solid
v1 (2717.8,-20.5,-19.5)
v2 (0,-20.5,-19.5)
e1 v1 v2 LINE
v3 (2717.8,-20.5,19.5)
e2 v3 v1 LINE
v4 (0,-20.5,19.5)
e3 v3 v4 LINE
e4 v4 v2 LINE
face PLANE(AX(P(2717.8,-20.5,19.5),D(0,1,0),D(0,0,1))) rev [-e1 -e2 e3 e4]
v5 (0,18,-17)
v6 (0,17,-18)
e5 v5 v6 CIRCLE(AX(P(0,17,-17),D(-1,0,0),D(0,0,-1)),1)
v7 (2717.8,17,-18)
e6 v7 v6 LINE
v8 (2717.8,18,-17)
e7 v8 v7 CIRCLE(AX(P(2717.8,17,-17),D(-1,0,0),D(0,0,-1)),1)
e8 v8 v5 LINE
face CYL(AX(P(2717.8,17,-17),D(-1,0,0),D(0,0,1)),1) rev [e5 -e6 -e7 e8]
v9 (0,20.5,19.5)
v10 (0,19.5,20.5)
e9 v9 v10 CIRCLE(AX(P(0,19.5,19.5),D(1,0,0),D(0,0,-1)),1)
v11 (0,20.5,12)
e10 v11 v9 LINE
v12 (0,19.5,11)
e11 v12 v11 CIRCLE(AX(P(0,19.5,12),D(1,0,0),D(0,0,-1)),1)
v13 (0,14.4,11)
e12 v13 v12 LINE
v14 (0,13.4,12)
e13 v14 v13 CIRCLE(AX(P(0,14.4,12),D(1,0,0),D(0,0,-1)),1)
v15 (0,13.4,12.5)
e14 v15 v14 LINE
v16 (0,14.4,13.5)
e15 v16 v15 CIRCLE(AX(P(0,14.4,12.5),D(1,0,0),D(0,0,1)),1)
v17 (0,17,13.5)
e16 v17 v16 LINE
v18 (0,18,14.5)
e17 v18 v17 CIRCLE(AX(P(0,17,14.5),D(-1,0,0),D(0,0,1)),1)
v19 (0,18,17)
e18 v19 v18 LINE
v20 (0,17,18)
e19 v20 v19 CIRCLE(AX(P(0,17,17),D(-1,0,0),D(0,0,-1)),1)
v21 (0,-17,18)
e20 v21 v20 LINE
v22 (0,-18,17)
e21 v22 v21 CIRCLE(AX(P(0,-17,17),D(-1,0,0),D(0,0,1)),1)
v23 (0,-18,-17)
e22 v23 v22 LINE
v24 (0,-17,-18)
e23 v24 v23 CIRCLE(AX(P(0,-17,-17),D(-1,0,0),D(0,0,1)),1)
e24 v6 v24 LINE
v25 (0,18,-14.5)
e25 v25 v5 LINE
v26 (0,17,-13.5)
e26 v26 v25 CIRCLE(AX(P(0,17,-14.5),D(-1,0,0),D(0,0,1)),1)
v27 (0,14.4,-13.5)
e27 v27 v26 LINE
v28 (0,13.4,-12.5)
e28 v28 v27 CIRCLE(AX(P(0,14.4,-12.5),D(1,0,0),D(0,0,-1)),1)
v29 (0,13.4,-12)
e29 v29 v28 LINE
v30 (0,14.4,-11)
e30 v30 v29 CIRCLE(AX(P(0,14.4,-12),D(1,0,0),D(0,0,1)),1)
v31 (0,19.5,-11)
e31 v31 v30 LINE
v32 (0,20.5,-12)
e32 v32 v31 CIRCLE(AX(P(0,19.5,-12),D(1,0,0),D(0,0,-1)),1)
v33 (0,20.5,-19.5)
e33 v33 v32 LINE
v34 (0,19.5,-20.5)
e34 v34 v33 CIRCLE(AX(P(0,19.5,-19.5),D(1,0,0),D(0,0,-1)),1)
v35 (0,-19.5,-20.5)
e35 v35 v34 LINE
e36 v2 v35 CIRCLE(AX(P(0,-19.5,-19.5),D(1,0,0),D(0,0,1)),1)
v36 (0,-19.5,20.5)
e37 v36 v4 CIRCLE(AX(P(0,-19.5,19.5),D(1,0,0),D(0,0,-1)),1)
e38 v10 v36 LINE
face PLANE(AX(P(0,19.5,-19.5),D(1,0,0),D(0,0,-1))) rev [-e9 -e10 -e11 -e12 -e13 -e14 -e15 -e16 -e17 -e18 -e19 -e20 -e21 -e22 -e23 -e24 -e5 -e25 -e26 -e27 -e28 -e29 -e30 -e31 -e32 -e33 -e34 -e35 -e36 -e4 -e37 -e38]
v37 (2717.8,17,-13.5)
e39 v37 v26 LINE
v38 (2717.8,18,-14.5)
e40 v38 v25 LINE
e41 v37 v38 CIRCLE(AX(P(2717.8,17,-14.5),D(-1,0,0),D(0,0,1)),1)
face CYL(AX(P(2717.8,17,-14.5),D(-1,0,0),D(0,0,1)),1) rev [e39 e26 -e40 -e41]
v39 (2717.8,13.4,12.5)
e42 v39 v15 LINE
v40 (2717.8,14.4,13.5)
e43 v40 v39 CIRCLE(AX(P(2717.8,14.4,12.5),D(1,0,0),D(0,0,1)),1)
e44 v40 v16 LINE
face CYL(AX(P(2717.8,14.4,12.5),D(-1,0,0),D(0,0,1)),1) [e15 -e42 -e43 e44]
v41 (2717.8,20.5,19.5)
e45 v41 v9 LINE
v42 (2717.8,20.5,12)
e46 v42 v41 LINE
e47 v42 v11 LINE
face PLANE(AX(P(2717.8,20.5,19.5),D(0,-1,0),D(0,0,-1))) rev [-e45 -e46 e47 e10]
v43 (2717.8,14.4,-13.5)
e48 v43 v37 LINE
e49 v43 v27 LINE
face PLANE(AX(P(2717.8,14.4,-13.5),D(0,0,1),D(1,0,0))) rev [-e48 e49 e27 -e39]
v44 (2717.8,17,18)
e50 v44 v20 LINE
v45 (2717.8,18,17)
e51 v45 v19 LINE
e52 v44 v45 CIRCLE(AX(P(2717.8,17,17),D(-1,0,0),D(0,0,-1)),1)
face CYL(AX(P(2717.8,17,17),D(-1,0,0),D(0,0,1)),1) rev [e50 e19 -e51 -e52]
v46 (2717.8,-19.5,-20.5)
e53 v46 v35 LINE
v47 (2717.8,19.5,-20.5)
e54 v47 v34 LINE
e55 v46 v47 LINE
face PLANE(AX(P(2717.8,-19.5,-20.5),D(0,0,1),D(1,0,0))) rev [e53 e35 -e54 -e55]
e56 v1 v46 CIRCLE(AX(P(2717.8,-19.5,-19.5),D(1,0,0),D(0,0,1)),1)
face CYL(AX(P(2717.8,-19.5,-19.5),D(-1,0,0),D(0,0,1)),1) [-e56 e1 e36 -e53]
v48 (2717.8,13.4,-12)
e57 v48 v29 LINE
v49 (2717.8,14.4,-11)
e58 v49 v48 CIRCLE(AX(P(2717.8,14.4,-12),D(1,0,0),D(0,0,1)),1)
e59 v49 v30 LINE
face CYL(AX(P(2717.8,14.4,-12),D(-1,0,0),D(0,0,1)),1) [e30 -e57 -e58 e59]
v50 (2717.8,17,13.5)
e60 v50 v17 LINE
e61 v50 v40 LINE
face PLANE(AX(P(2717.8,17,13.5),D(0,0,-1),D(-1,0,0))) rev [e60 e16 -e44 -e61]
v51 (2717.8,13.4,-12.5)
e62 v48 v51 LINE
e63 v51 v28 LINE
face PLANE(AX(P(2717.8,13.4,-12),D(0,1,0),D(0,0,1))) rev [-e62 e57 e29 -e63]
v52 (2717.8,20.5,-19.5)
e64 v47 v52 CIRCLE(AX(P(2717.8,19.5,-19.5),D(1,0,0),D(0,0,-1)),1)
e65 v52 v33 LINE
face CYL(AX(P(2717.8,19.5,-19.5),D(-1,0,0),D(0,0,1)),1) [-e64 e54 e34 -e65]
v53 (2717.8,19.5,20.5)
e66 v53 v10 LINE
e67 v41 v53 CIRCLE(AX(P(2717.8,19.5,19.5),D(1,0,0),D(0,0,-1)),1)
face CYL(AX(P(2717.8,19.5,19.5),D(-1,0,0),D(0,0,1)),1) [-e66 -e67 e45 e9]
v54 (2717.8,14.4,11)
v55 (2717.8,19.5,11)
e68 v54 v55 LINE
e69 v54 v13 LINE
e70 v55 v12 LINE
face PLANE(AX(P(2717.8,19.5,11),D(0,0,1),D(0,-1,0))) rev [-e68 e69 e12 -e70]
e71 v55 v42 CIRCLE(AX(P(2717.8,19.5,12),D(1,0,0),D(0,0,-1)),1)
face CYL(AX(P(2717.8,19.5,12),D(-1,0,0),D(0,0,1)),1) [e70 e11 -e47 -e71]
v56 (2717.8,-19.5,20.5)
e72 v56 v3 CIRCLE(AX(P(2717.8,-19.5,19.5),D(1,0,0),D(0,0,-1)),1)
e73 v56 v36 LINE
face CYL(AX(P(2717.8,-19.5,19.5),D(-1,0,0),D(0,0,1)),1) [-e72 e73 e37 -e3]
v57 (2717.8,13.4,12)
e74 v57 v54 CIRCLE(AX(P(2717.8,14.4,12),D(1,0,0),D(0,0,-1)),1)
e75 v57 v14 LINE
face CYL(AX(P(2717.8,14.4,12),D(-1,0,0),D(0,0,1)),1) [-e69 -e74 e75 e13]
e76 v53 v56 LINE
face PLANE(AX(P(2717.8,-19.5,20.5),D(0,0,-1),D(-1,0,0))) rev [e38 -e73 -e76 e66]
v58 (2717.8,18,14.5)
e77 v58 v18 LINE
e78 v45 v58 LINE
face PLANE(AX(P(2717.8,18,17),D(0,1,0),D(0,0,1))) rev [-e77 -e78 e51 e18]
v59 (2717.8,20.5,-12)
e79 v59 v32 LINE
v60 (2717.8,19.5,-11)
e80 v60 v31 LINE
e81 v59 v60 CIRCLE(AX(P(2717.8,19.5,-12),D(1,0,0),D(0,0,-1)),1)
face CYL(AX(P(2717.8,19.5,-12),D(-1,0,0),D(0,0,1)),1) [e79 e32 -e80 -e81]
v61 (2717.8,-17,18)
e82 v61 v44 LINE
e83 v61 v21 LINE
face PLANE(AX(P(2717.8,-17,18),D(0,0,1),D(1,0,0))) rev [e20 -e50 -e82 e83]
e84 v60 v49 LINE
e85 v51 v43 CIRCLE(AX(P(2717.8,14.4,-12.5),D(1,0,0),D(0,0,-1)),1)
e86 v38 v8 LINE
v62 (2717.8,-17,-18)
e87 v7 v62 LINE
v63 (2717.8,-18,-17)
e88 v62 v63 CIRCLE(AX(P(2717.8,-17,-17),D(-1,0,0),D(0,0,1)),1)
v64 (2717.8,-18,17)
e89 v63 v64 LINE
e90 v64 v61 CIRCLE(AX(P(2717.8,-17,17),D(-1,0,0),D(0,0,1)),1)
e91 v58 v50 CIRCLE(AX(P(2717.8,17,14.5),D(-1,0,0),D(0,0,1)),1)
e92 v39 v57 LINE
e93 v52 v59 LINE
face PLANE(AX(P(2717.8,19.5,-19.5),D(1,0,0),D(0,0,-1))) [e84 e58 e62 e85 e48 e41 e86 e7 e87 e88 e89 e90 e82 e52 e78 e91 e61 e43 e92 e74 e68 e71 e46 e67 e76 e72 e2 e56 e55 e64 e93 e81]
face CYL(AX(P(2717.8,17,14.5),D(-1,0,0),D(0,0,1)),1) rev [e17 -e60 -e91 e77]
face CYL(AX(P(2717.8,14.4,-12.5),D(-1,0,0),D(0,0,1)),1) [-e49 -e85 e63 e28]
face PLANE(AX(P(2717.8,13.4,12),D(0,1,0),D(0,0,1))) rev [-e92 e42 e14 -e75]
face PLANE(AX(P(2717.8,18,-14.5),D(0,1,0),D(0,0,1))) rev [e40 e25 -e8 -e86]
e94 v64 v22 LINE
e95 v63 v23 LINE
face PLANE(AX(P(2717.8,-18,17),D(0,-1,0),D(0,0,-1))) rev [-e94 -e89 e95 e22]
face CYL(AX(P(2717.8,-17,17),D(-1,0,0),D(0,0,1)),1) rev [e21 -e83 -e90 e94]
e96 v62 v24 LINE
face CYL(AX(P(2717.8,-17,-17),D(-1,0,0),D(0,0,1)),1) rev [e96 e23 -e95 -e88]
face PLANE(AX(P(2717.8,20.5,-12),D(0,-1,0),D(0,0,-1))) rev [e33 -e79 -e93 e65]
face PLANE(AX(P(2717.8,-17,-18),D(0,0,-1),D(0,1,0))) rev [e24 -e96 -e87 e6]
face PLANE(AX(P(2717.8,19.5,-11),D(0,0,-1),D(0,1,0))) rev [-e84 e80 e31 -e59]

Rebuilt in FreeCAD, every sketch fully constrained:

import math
import FreeCAD as App
import Part
import Sketcher

V = App.Vector
Q = App.Units.Quantity

doc = App.newDocument("Part")
params = doc.addObject("Spreadsheet::Sheet", "Params")
for row, (alias, value) in enumerate([
    ("sketch1_radius", "1 mm"),
    ("sketch1_width", "34 mm"),
    ("sketch1_width2", "39 mm"),
    ("sketch1_width3", "2.6 mm"),
    ("sketch1_height", "2.5 mm"),
    ("pad1_length", "2717.8 mm"),
], start=1):
    params.set(f"A{row}", alias)
    params.set(f"B{row}", "=" + value)
    params.setAlias(f"B{row}", alias)

body = doc.addObject("PartDesign::Body", "Body")

# Sketch on YZ plane
sketch1 = body.newObject("Sketcher::SketchObject", "Sketch")
sketch1.AttachmentSupport = (doc.getObject("YZ_Plane"), [""])
sketch1.MapMode = "FlatFace"
sketch1.addGeometry([
    Part.LineSegment(V(-17, 18, 0), V(17, 18, 0)),  # 0
    Part.ArcOfCircle(Part.Circle(V(17, 17, 0), V(0, 0, 1), 1), math.radians(0), math.radians(90)),  # 1
    Part.LineSegment(V(18, 17, 0), V(18, 14.5, 0)),  # 2
    Part.ArcOfCircle(Part.Circle(V(17, 14.5, 0), V(0, 0, 1), 1), math.radians(-90), math.radians(0)),  # 3
    Part.LineSegment(V(17, 13.5, 0), V(14.4, 13.5, 0)),  # 4
    Part.ArcOfCircle(Part.Circle(V(14.4, 12.5, 0), V(0, 0, 1), 1), math.radians(90), math.radians(180)),  # 5
    Part.LineSegment(V(13.4, 12.5, 0), V(13.4, 12, 0)),  # 6
    Part.ArcOfCircle(Part.Circle(V(14.4, 12, 0), V(0, 0, 1), 1), math.radians(-180), math.radians(-90)),  # 7
    Part.LineSegment(V(14.4, 11, 0), V(19.5, 11, 0)),  # 8
    Part.ArcOfCircle(Part.Circle(V(19.5, 12, 0), V(0, 0, 1), 1), math.radians(-90), math.radians(0)),  # 9
    Part.LineSegment(V(20.5, 12, 0), V(20.5, 19.5, 0)),  # 10
    Part.ArcOfCircle(Part.Circle(V(19.5, 19.5, 0), V(0, 0, 1), 1), math.radians(0), math.radians(90)),  # 11
    Part.LineSegment(V(19.5, 20.5, 0), V(-19.5, 20.5, 0)),  # 12
    Part.ArcOfCircle(Part.Circle(V(-19.5, 19.5, 0), V(0, 0, 1), 1), math.radians(90), math.radians(180)),  # 13
    Part.LineSegment(V(-20.5, 19.5, 0), V(-20.5, -19.5, 0)),  # 14
    Part.ArcOfCircle(Part.Circle(V(-19.5, -19.5, 0), V(0, 0, 1), 1), math.radians(-180), math.radians(-90)),  # 15
    Part.LineSegment(V(-19.5, -20.5, 0), V(19.5, -20.5, 0)),  # 16
    Part.ArcOfCircle(Part.Circle(V(19.5, -19.5, 0), V(0, 0, 1), 1), math.radians(-90), math.radians(0)),  # 17
    Part.LineSegment(V(20.5, -19.5, 0), V(20.5, -12, 0)),  # 18
    Part.ArcOfCircle(Part.Circle(V(19.5, -12, 0), V(0, 0, 1), 1), math.radians(0), math.radians(90)),  # 19
    Part.LineSegment(V(19.5, -11, 0), V(14.4, -11, 0)),  # 20
    Part.ArcOfCircle(Part.Circle(V(14.4, -12, 0), V(0, 0, 1), 1), math.radians(90), math.radians(180)),  # 21
    Part.LineSegment(V(13.4, -12, 0), V(13.4, -12.5, 0)),  # 22
    Part.ArcOfCircle(Part.Circle(V(14.4, -12.5, 0), V(0, 0, 1), 1), math.radians(-180), math.radians(-90)),  # 23
    Part.LineSegment(V(14.4, -13.5, 0), V(17, -13.5, 0)),  # 24
    Part.ArcOfCircle(Part.Circle(V(17, -14.5, 0), V(0, 0, 1), 1), math.radians(0), math.radians(90)),  # 25
    Part.LineSegment(V(18, -14.5, 0), V(18, -17, 0)),  # 26
    Part.ArcOfCircle(Part.Circle(V(17, -17, 0), V(0, 0, 1), 1), math.radians(-90), math.radians(0)),  # 27
    Part.LineSegment(V(17, -18, 0), V(-17, -18, 0)),  # 28
    Part.ArcOfCircle(Part.Circle(V(-17, -17, 0), V(0, 0, 1), 1), math.radians(-180), math.radians(-90)),  # 29
    Part.LineSegment(V(-18, -17, 0), V(-18, 17, 0)),  # 30
    Part.ArcOfCircle(Part.Circle(V(-17, 17, 0), V(0, 0, 1), 1), math.radians(90), math.radians(180)),  # 31
], False)
sketch1.addConstraint([
    Sketcher.Constraint("Tangent", 0, 2, 1, 2),
    Sketcher.Constraint("Tangent", 1, 1, 2, 1),
    Sketcher.Constraint("Tangent", 2, 2, 3, 2),
    Sketcher.Constraint("Tangent", 3, 1, 4, 1),
    Sketcher.Constraint("Tangent", 4, 2, 5, 1),
    Sketcher.Constraint("Tangent", 5, 2, 6, 1),
    Sketcher.Constraint("Tangent", 6, 2, 7, 1),
    Sketcher.Constraint("Tangent", 7, 2, 8, 1),
    Sketcher.Constraint("Tangent", 8, 2, 9, 1),
    Sketcher.Constraint("Tangent", 9, 2, 10, 1),
    Sketcher.Constraint("Tangent", 10, 2, 11, 1),
    Sketcher.Constraint("Tangent", 11, 2, 12, 1),
    Sketcher.Constraint("Tangent", 12, 2, 13, 1),
    Sketcher.Constraint("Tangent", 13, 2, 14, 1),
    Sketcher.Constraint("Tangent", 14, 2, 15, 1),
    Sketcher.Constraint("Tangent", 15, 2, 16, 1),
    Sketcher.Constraint("Tangent", 16, 2, 17, 1),
    Sketcher.Constraint("Tangent", 17, 2, 18, 1),
    Sketcher.Constraint("Tangent", 18, 2, 19, 1),
    Sketcher.Constraint("Tangent", 19, 2, 20, 1),
    Sketcher.Constraint("Tangent", 20, 2, 21, 1),
    Sketcher.Constraint("Tangent", 21, 2, 22, 1),
    Sketcher.Constraint("Tangent", 22, 2, 23, 1),
    Sketcher.Constraint("Tangent", 23, 2, 24, 1),
    Sketcher.Constraint("Tangent", 24, 2, 25, 2),
    Sketcher.Constraint("Tangent", 25, 1, 26, 1),
    Sketcher.Constraint("Tangent", 26, 2, 27, 2),
    Sketcher.Constraint("Tangent", 27, 1, 28, 1),
    Sketcher.Constraint("Tangent", 28, 2, 29, 2),
    Sketcher.Constraint("Tangent", 29, 1, 30, 1),
    Sketcher.Constraint("Tangent", 30, 2, 31, 2),
    Sketcher.Constraint("Tangent", 31, 1, 0, 1),
    Sketcher.Constraint("Horizontal", 0),
    Sketcher.Constraint("Vertical", 2),
    Sketcher.Constraint("Horizontal", 4),
    Sketcher.Constraint("Vertical", 6),
    Sketcher.Constraint("Horizontal", 8),
    Sketcher.Constraint("Vertical", 10),
    Sketcher.Constraint("Horizontal", 12),
    Sketcher.Constraint("Vertical", 14),
    Sketcher.Constraint("Horizontal", 16),
    Sketcher.Constraint("Vertical", 18),
    Sketcher.Constraint("Horizontal", 20),
    Sketcher.Constraint("Vertical", 22),
    Sketcher.Constraint("Horizontal", 24),
    Sketcher.Constraint("Vertical", 26),
    Sketcher.Constraint("Horizontal", 28),
    Sketcher.Constraint("Vertical", 30),
    Sketcher.Constraint("Equal", 1, 3),
    Sketcher.Constraint("Equal", 3, 5),
    Sketcher.Constraint("Equal", 5, 7),
    Sketcher.Constraint("Equal", 7, 9),
    Sketcher.Constraint("Equal", 9, 11),
    Sketcher.Constraint("Equal", 11, 13),
    Sketcher.Constraint("Equal", 13, 15),
    Sketcher.Constraint("Equal", 15, 17),
    Sketcher.Constraint("Equal", 17, 19),
    Sketcher.Constraint("Equal", 19, 21),
    Sketcher.Constraint("Equal", 21, 23),
    Sketcher.Constraint("Equal", 23, 25),
    Sketcher.Constraint("Equal", 25, 27),
    Sketcher.Constraint("Equal", 27, 29),
    Sketcher.Constraint("Equal", 29, 31),
    Sketcher.Constraint("Symmetric", 11, 3, 15, 3, -1, 1),
    Sketcher.Constraint("Symmetric", 1, 3, 29, 3, -1, 1),
    Sketcher.Constraint("Symmetric", 9, 3, 19, 3, -1),
    Sketcher.Constraint("Symmetric", 5, 3, 23, 3, -1),
    Sketcher.Constraint("Vertical", 3, 3, 25, 3),
    Sketcher.Constraint("Equal", 16, 14),
    Sketcher.Constraint("Equal", 28, 30),
    Sketcher.Constraint("Radius", 1, Q("1 mm")),
    Sketcher.Constraint("DistanceX", 0, 1, 0, 2, Q("34 mm")),
    Sketcher.Constraint("DistanceX", 12, 2, 12, 1, Q("39 mm")),
    Sketcher.Constraint("DistanceX", 4, 2, 4, 1, Q("2.6 mm")),
    Sketcher.Constraint("DistanceY", 2, 2, 2, 1, Q("2.5 mm")),
    Sketcher.Constraint("DistanceY", 6, 2, 6, 1, Q("0.5 mm")),
])
sketch1.setExpression("Constraints[70]", "Params.sketch1_radius")
sketch1.setExpression("Constraints[71]", "Params.sketch1_width")
sketch1.setExpression("Constraints[72]", "Params.sketch1_width2")
sketch1.setExpression("Constraints[73]", "Params.sketch1_width3")
sketch1.setExpression("Constraints[74]", "Params.sketch1_height")
pad1 = body.newObject("PartDesign::Pad", "Pad")
pad1.Profile = sketch1
pad1.setExpression("Length", "Params.pad1_length")

doc.recompute()
